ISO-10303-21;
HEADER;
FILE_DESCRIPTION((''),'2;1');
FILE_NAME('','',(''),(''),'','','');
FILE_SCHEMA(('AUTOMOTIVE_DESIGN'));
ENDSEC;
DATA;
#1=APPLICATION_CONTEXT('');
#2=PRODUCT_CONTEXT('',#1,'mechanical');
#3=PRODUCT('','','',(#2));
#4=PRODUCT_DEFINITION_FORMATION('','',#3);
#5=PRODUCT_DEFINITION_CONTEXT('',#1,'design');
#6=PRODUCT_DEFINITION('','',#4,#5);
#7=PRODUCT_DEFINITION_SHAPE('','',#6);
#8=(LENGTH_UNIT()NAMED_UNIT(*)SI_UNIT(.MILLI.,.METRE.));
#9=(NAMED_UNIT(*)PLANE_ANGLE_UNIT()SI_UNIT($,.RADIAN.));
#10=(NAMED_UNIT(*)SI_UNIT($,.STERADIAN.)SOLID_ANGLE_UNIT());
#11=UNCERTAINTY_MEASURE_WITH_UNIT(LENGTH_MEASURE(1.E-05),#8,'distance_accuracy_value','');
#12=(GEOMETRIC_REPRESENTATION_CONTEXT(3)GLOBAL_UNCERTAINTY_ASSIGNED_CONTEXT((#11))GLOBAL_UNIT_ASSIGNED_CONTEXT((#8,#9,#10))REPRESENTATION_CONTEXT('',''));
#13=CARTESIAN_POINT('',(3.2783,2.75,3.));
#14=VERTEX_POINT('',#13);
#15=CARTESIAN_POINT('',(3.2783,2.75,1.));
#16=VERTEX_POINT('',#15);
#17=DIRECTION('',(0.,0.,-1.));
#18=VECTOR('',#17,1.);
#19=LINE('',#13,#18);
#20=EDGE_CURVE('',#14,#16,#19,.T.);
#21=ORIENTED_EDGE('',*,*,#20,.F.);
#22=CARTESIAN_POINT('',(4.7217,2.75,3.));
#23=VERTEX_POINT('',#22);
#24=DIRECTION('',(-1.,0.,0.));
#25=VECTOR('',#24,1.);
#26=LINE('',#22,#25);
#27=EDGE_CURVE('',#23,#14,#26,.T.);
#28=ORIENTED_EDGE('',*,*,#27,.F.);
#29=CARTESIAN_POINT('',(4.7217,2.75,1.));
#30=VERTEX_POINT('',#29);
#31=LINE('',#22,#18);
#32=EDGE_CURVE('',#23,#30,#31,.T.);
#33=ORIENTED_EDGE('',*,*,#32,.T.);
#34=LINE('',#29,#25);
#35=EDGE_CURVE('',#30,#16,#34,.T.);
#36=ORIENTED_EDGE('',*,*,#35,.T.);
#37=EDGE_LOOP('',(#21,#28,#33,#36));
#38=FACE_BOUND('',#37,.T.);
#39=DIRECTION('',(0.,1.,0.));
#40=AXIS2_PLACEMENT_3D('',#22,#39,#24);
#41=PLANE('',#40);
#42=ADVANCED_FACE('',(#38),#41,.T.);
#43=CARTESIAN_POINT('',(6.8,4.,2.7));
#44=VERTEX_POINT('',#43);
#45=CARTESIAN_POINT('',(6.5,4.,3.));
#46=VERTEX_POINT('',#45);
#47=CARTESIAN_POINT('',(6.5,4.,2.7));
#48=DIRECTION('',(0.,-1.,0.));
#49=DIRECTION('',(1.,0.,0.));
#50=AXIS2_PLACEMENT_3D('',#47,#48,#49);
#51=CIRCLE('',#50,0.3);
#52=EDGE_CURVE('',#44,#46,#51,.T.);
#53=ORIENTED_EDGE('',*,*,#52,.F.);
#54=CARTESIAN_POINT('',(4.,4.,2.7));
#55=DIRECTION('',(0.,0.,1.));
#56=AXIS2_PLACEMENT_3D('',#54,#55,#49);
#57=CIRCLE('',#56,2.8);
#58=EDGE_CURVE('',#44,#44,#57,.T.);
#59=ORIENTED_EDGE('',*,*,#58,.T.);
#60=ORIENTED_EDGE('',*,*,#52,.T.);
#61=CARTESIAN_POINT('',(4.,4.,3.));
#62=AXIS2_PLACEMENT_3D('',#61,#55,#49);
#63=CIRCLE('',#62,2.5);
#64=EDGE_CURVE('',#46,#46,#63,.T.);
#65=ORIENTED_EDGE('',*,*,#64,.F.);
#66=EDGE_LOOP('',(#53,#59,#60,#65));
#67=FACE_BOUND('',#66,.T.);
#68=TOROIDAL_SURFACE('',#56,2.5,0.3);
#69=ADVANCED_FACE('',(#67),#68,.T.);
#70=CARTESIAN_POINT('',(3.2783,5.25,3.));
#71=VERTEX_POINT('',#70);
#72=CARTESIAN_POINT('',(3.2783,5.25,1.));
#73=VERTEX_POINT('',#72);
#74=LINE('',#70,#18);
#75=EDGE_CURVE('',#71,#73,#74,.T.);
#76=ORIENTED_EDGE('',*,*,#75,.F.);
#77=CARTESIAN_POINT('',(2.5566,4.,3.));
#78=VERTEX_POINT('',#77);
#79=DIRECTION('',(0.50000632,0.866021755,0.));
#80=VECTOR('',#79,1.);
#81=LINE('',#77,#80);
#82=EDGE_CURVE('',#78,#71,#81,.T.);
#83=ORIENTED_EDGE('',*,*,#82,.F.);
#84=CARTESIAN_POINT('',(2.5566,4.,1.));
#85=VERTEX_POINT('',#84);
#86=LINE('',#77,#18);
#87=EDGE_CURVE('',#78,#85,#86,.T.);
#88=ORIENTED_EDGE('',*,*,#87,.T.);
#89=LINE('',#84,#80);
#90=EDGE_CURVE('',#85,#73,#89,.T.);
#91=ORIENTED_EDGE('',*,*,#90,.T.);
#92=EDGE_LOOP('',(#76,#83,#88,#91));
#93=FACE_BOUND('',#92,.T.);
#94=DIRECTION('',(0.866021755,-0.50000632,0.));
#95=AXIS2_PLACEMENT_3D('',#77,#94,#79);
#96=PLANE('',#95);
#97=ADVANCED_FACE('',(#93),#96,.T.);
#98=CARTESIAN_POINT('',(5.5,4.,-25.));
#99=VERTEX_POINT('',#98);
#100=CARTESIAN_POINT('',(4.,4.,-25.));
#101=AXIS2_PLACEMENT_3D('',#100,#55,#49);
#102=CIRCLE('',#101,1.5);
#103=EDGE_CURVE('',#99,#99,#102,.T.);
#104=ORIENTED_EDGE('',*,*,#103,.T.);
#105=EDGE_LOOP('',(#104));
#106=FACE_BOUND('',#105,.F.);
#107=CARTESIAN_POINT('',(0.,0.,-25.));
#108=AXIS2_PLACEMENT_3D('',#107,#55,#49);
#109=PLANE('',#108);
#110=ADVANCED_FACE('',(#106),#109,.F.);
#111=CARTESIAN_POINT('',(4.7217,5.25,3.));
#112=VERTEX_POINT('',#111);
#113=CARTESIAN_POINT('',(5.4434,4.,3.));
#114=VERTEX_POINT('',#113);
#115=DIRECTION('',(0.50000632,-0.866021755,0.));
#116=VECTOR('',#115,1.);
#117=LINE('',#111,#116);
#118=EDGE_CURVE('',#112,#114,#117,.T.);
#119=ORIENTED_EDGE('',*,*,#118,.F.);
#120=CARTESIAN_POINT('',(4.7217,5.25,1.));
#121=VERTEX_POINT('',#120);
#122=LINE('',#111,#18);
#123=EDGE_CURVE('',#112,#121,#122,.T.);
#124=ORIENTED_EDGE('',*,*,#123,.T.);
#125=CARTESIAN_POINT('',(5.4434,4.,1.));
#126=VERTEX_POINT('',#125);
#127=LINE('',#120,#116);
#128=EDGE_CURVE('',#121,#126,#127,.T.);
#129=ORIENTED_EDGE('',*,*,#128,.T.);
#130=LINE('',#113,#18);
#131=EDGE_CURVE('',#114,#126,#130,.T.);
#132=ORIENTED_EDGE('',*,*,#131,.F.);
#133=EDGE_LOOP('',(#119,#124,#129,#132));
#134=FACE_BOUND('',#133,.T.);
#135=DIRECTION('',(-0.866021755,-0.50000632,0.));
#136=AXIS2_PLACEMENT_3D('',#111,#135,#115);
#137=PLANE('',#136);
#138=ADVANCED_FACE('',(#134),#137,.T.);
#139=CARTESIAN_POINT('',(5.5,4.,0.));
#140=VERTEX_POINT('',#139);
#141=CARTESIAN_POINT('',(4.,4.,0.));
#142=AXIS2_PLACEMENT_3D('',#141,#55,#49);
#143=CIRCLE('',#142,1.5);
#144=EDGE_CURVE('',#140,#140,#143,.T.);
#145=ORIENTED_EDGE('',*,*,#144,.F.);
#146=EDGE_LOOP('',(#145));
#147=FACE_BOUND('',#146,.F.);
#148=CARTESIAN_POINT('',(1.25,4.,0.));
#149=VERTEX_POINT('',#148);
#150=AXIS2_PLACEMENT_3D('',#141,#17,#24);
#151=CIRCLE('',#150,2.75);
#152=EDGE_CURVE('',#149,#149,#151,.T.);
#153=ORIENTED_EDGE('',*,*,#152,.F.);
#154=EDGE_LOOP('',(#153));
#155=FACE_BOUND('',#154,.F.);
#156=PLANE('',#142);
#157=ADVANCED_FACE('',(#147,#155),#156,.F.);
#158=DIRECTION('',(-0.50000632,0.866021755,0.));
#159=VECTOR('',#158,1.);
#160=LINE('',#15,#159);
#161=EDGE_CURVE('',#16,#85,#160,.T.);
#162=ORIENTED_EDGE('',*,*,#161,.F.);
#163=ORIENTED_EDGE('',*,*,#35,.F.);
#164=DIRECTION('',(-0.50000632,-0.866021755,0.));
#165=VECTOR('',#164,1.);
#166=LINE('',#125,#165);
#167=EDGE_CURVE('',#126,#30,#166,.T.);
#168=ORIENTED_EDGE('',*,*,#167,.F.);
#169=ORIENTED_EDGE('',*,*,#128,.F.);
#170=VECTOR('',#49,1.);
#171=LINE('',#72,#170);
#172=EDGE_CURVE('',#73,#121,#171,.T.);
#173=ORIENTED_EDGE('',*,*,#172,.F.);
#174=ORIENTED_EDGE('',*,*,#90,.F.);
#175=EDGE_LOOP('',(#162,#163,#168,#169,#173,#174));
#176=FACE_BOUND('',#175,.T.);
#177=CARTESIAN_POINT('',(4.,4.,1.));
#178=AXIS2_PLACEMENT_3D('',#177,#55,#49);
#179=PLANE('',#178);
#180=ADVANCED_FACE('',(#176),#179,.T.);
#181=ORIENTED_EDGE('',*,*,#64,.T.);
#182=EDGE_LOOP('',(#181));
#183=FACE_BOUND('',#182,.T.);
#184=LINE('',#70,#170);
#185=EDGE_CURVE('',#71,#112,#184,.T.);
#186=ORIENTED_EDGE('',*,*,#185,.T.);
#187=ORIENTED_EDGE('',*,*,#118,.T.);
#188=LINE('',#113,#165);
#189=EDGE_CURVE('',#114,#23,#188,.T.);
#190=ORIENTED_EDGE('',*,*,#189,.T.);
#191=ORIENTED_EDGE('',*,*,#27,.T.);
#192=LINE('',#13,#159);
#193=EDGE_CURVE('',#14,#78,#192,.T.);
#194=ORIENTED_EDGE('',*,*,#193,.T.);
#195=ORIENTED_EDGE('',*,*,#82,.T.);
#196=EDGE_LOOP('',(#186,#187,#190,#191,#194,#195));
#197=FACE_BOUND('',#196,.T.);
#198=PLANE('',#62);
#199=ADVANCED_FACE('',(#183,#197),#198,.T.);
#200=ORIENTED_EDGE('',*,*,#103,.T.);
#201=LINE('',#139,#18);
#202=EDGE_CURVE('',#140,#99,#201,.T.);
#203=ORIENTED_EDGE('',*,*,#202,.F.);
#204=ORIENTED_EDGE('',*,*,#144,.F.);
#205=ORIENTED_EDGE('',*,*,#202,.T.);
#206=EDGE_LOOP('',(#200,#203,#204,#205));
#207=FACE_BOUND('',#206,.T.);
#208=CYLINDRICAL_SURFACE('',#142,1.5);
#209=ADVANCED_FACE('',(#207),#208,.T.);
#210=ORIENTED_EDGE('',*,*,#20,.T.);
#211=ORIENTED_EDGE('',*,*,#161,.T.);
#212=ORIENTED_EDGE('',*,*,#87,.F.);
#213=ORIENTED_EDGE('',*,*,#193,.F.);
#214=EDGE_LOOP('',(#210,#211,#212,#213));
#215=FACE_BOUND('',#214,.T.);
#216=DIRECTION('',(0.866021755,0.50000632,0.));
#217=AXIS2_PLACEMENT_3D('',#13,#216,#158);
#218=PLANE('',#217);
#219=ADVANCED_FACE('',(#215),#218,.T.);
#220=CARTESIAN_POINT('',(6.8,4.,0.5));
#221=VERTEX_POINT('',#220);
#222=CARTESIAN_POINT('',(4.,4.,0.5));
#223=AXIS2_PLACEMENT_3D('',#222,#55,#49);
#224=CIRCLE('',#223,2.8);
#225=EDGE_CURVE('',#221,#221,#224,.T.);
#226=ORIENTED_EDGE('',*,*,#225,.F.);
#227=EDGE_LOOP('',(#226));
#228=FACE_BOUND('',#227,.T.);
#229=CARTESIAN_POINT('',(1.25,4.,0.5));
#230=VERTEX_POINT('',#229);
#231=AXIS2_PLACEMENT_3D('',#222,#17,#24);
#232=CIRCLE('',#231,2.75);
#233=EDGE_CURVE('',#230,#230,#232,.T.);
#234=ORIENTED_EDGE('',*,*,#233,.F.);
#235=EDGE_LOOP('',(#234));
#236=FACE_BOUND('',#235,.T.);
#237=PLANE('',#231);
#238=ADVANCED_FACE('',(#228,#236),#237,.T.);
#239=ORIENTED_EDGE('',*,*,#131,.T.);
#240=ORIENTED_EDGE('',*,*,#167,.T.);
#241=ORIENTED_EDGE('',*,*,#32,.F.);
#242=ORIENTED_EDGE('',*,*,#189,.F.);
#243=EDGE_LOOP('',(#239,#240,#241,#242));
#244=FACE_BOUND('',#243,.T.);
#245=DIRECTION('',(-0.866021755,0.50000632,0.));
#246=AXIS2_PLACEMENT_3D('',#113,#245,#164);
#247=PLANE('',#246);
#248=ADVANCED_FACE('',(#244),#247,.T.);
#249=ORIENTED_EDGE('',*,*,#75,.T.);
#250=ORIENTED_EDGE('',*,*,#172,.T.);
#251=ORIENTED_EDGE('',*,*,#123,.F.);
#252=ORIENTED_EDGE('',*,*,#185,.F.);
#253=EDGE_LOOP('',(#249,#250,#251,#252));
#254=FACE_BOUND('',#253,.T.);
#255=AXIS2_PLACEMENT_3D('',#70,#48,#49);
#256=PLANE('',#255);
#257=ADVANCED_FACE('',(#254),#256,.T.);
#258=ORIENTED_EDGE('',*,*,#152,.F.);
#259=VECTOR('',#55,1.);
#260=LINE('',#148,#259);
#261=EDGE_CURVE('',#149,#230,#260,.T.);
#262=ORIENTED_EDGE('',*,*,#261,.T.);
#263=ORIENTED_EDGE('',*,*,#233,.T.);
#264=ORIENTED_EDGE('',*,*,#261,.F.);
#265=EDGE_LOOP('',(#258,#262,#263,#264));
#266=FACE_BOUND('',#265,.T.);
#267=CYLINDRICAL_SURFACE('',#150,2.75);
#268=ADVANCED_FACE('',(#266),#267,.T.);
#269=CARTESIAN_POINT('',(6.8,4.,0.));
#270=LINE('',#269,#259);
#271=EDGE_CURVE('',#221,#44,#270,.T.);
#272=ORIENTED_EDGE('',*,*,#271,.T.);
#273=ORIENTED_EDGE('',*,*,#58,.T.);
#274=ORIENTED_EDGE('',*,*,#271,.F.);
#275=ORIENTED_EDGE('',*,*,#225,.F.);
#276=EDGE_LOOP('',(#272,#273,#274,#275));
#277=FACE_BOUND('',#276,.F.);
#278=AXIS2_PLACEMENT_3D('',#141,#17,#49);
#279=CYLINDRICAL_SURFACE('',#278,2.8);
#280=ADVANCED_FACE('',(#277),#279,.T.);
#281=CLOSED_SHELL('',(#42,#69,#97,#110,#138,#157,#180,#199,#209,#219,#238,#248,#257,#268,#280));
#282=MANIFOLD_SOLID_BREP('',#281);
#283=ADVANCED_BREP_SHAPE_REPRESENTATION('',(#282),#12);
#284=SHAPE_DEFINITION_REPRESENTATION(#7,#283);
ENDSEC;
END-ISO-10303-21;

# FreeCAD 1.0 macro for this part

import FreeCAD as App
import Part
import Sketcher
Q = App.Units.Quantity


def edges_at(feature, points):
    """Names of the edges that pass closest to the given points."""
    edges = feature.Shape.Edges
    near = lambda p: min(range(len(edges)), key=lambda i: edges[i].distToShape(Part.Vertex(*p))[0])
    return sorted({f"Edge{near(p) + 1}" for p in points})


def add_polygon(sketch, points):
    """Adds a closed chain of lines whose ends are joined by coincident constraints."""
    first, n = sketch.GeometryCount, len(points)
    for a, b in zip(points, points[1:] + points[:1]):
        sketch.addGeometry(Part.LineSegment(App.Vector(*a, 0), App.Vector(*b, 0)), False)
    for i in range(n):
        sketch.addConstraint(Sketcher.Constraint("Coincident", first + i, 2, first + (i + 1) % n, 1))

doc = App.newDocument("Part")
body = doc.addObject("PartDesign::Body", "Body")

# Sketch on XY plane
sketch1 = body.newObject("Sketcher::SketchObject", "Sketch")
sketch1.AttachmentSupport = (doc.getObject("XY_Plane"), [""])
sketch1.MapMode = "FlatFace"
sketch1.addGeometry(Part.Circle(App.Vector(4, 4, 0), App.Vector(0, 0, 1), 1.5), False)
sketch1.addConstraint([
    Sketcher.Constraint("Diameter", 0, 3.0),
    Sketcher.Constraint("DistanceX", -1, 1, 0, 3, 4.0),
    Sketcher.Constraint("DistanceY", -1, 1, 0, 3, 4.0),
])
pad1 = body.newObject("PartDesign::Pad", "Pad")
pad1.Profile = sketch1
pad1.Length = 25
pad1.Reversed = True

# Sketch on XY plane
sketch2 = body.newObject("Sketcher::SketchObject", "Sketch001")
sketch2.AttachmentSupport = (doc.getObject("XY_Plane"), [""])
sketch2.MapMode = "FlatFace"
sketch2.addGeometry(Part.Circle(App.Vector(4, 4, 0), App.Vector(0, 0, 1), 2.8), False)
sketch2.addConstraint([
    Sketcher.Constraint("Diameter", 0, 5.6),
    Sketcher.Constraint("DistanceX", -1, 1, 0, 3, 4.0),
    Sketcher.Constraint("DistanceY", -1, 1, 0, 3, 4.0),
])
pad2 = body.newObject("PartDesign::Pad", "Pad001")
pad2.Profile = sketch2
pad2.Length = 3
doc.recompute()

fillet = body.newObject("PartDesign::Fillet", "Fillet")
fillet.Base = (pad2, edges_at(pad2, [(1.2, 4, 3)]))
fillet.Radius = 0.3

# Sketch on XY plane
sketch3 = body.newObject("Sketcher::SketchObject", "Sketch002")
sketch3.AttachmentSupport = (doc.getObject("XY_Plane"), [""])
sketch3.MapMode = "FlatFace"
sketch3.addGeometry([
    Part.Circle(App.Vector(4, 4, 0), App.Vector(0, 0, 1), 2.8),
    Part.Circle(App.Vector(4, 4, 0), App.Vector(0, 0, 1), 2.8),
], False)
sketch3.addConstraint([
    Sketcher.Constraint("Coincident", 1, 3, 0, 3),
    Sketcher.Constraint("Diameter", 1, 5.5),
    Sketcher.Constraint("Diameter", 0, 5.6),
    Sketcher.Constraint("DistanceX", -1, 1, 0, 3, 4.0),
    Sketcher.Constraint("DistanceY", -1, 1, 0, 3, 4.0),
])
pocket1 = body.newObject("PartDesign::Pocket", "Pocket")
pocket1.Profile = sketch3
pocket1.Length = 0.5
pocket1.Reversed = True

# Sketch on XY plane
sketch4 = body.newObject("Sketcher::SketchObject", "Sketch003")
sketch4.AttachmentSupport = (doc.getObject("XY_Plane"), [""])
sketch4.MapMode = "FlatFace"
sketch4.AttachmentOffset = App.Placement(App.Vector(0, 0, 3), App.Rotation())
add_polygon(sketch4, [(5.4, 4), (4.7, 5.2), (3.3, 5.2), (2.6, 4), (3.3, 2.8), (4.7, 2.8)])  # lines 0-5
sketch4.addConstraint([
    Sketcher.Constraint("Horizontal", 1),
    Sketcher.Constraint("Horizontal", 4),
    Sketcher.Constraint("Parallel", 0, 3),
    Sketcher.Constraint("Parallel", 2, 5),
    Sketcher.Constraint("Horizontal", 2, 2, 5, 2),
    Sketcher.Constraint("Vertical", 1, 2, 3, 2),
    Sketcher.Constraint("Vertical", 0, 2, 4, 2),
    Sketcher.Constraint("DistanceY", 3, 2, 1, 2, 2.5),
    Sketcher.Constraint("Angle", 0, Q("120.0004 deg")),
    Sketcher.Constraint("DistanceY", -1, 1, 2, 2, 4.0),
    Sketcher.Constraint("DistanceX", 1, 2, 1, 1, 1.4434),
    Sketcher.Constraint("DistanceX", -1, 1, 0, 2, 4.7217),
])
pocket2 = body.newObject("PartDesign::Pocket", "Pocket001")
pocket2.Profile = sketch4
pocket2.Length = 2

doc.recompute()
